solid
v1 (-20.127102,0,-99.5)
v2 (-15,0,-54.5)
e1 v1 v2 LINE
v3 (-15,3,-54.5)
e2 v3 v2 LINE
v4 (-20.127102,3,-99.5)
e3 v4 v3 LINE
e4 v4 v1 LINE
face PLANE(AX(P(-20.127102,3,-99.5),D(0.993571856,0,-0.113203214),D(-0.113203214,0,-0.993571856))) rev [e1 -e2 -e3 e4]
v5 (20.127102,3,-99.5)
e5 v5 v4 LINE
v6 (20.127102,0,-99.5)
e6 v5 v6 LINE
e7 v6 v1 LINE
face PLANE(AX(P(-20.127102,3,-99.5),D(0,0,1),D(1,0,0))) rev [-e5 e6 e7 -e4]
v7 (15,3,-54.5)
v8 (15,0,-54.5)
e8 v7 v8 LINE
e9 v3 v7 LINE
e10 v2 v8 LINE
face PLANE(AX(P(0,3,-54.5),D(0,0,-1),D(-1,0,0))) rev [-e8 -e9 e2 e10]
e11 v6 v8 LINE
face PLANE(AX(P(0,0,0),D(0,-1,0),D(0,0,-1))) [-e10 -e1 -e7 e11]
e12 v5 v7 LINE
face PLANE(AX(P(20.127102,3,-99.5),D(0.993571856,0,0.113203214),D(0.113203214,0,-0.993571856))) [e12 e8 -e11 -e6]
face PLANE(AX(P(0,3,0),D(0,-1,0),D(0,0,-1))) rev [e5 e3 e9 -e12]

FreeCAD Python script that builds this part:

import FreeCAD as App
import Part
import Sketcher
Q = App.Units.Quantity

doc = App.newDocument("Part")
params = doc.addObject("Spreadsheet::Sheet", "Params")
for row, (alias, value) in enumerate([
    ("sketch1_width", "15 mm"),
    ("sketch1_height", "45 mm"),
    ("pad1_length", "3 mm"),
], start=1):
    params.set(f"A{row}", alias)
    params.set(f"B{row}", "=" + value)
    params.setAlias(f"B{row}", alias)

body = doc.addObject("PartDesign::Body", "Body")

sketch1 = body.newObject("Sketcher::SketchObject", "Sketch")
sketch1.AttachmentSupport = (doc.getObject("XZ_Plane"), [""])
sketch1.MapMode = "FlatFace"
sketch1.addGeometry(Part.LineSegment(App.Vector(-20, -100, 0), App.Vector(-15, -54, 0)), False)
sketch1.addGeometry(Part.LineSegment(App.Vector(-15, -54, 0), App.Vector(0, -54, 0)), False)
sketch1.addGeometry(Part.LineSegment(App.Vector(0, -54, 0), App.Vector(0, -100, 0)), False)
sketch1.addGeometry(Part.LineSegment(App.Vector(0, -100, 0), App.Vector(-20, -100, 0)), False)
sketch1.addConstraint(Sketcher.Constraint("Coincident", 0, 2, 1, 1))
sketch1.addConstraint(Sketcher.Constraint("Coincident", 1, 2, 2, 1))
sketch1.addConstraint(Sketcher.Constraint("Coincident", 2, 2, 3, 1))
sketch1.addConstraint(Sketcher.Constraint("Coincident", 3, 2, 0, 1))
sketch1.addConstraint(Sketcher.Constraint("Horizontal", 1))
sketch1.addConstraint(Sketcher.Constraint("Vertical", 2))
sketch1.addConstraint(Sketcher.Constraint("Horizontal", 3))
sketch1.addConstraint(Sketcher.Constraint("PointOnObject", 1, 2, -2))
sketch1.addConstraint(Sketcher.Constraint("DistanceX", 1, 1, 1, 2, 15.0))
sketch1.addConstraint(Sketcher.Constraint("DistanceY", 2, 2, 2, 1, 45.0))
sketch1.addConstraint(Sketcher.Constraint("Angle", 0, Q("83.5 deg")))
sketch1.addConstraint(Sketcher.Constraint("DistanceY", 0, 2, -1, 1, 54.5))
sketch1.setExpression("Constraints[8]", "Params.sketch1_width")
sketch1.setExpression("Constraints[9]", "Params.sketch1_height")
pad1 = body.newObject("PartDesign::Pad", "Pad")
pad1.Profile = sketch1
pad1.setExpression("Length", "Params.pad1_length")
pad1.Reversed = True
doc.recompute()

mirrored = body.newObject("PartDesign::Mirrored", "Mirrored")
mirrored.Originals = [pad1]
mirrored.MirrorPlane = (doc.getObject("YZ_Plane"), [""])
body.Tip = mirrored

doc.recompute()
